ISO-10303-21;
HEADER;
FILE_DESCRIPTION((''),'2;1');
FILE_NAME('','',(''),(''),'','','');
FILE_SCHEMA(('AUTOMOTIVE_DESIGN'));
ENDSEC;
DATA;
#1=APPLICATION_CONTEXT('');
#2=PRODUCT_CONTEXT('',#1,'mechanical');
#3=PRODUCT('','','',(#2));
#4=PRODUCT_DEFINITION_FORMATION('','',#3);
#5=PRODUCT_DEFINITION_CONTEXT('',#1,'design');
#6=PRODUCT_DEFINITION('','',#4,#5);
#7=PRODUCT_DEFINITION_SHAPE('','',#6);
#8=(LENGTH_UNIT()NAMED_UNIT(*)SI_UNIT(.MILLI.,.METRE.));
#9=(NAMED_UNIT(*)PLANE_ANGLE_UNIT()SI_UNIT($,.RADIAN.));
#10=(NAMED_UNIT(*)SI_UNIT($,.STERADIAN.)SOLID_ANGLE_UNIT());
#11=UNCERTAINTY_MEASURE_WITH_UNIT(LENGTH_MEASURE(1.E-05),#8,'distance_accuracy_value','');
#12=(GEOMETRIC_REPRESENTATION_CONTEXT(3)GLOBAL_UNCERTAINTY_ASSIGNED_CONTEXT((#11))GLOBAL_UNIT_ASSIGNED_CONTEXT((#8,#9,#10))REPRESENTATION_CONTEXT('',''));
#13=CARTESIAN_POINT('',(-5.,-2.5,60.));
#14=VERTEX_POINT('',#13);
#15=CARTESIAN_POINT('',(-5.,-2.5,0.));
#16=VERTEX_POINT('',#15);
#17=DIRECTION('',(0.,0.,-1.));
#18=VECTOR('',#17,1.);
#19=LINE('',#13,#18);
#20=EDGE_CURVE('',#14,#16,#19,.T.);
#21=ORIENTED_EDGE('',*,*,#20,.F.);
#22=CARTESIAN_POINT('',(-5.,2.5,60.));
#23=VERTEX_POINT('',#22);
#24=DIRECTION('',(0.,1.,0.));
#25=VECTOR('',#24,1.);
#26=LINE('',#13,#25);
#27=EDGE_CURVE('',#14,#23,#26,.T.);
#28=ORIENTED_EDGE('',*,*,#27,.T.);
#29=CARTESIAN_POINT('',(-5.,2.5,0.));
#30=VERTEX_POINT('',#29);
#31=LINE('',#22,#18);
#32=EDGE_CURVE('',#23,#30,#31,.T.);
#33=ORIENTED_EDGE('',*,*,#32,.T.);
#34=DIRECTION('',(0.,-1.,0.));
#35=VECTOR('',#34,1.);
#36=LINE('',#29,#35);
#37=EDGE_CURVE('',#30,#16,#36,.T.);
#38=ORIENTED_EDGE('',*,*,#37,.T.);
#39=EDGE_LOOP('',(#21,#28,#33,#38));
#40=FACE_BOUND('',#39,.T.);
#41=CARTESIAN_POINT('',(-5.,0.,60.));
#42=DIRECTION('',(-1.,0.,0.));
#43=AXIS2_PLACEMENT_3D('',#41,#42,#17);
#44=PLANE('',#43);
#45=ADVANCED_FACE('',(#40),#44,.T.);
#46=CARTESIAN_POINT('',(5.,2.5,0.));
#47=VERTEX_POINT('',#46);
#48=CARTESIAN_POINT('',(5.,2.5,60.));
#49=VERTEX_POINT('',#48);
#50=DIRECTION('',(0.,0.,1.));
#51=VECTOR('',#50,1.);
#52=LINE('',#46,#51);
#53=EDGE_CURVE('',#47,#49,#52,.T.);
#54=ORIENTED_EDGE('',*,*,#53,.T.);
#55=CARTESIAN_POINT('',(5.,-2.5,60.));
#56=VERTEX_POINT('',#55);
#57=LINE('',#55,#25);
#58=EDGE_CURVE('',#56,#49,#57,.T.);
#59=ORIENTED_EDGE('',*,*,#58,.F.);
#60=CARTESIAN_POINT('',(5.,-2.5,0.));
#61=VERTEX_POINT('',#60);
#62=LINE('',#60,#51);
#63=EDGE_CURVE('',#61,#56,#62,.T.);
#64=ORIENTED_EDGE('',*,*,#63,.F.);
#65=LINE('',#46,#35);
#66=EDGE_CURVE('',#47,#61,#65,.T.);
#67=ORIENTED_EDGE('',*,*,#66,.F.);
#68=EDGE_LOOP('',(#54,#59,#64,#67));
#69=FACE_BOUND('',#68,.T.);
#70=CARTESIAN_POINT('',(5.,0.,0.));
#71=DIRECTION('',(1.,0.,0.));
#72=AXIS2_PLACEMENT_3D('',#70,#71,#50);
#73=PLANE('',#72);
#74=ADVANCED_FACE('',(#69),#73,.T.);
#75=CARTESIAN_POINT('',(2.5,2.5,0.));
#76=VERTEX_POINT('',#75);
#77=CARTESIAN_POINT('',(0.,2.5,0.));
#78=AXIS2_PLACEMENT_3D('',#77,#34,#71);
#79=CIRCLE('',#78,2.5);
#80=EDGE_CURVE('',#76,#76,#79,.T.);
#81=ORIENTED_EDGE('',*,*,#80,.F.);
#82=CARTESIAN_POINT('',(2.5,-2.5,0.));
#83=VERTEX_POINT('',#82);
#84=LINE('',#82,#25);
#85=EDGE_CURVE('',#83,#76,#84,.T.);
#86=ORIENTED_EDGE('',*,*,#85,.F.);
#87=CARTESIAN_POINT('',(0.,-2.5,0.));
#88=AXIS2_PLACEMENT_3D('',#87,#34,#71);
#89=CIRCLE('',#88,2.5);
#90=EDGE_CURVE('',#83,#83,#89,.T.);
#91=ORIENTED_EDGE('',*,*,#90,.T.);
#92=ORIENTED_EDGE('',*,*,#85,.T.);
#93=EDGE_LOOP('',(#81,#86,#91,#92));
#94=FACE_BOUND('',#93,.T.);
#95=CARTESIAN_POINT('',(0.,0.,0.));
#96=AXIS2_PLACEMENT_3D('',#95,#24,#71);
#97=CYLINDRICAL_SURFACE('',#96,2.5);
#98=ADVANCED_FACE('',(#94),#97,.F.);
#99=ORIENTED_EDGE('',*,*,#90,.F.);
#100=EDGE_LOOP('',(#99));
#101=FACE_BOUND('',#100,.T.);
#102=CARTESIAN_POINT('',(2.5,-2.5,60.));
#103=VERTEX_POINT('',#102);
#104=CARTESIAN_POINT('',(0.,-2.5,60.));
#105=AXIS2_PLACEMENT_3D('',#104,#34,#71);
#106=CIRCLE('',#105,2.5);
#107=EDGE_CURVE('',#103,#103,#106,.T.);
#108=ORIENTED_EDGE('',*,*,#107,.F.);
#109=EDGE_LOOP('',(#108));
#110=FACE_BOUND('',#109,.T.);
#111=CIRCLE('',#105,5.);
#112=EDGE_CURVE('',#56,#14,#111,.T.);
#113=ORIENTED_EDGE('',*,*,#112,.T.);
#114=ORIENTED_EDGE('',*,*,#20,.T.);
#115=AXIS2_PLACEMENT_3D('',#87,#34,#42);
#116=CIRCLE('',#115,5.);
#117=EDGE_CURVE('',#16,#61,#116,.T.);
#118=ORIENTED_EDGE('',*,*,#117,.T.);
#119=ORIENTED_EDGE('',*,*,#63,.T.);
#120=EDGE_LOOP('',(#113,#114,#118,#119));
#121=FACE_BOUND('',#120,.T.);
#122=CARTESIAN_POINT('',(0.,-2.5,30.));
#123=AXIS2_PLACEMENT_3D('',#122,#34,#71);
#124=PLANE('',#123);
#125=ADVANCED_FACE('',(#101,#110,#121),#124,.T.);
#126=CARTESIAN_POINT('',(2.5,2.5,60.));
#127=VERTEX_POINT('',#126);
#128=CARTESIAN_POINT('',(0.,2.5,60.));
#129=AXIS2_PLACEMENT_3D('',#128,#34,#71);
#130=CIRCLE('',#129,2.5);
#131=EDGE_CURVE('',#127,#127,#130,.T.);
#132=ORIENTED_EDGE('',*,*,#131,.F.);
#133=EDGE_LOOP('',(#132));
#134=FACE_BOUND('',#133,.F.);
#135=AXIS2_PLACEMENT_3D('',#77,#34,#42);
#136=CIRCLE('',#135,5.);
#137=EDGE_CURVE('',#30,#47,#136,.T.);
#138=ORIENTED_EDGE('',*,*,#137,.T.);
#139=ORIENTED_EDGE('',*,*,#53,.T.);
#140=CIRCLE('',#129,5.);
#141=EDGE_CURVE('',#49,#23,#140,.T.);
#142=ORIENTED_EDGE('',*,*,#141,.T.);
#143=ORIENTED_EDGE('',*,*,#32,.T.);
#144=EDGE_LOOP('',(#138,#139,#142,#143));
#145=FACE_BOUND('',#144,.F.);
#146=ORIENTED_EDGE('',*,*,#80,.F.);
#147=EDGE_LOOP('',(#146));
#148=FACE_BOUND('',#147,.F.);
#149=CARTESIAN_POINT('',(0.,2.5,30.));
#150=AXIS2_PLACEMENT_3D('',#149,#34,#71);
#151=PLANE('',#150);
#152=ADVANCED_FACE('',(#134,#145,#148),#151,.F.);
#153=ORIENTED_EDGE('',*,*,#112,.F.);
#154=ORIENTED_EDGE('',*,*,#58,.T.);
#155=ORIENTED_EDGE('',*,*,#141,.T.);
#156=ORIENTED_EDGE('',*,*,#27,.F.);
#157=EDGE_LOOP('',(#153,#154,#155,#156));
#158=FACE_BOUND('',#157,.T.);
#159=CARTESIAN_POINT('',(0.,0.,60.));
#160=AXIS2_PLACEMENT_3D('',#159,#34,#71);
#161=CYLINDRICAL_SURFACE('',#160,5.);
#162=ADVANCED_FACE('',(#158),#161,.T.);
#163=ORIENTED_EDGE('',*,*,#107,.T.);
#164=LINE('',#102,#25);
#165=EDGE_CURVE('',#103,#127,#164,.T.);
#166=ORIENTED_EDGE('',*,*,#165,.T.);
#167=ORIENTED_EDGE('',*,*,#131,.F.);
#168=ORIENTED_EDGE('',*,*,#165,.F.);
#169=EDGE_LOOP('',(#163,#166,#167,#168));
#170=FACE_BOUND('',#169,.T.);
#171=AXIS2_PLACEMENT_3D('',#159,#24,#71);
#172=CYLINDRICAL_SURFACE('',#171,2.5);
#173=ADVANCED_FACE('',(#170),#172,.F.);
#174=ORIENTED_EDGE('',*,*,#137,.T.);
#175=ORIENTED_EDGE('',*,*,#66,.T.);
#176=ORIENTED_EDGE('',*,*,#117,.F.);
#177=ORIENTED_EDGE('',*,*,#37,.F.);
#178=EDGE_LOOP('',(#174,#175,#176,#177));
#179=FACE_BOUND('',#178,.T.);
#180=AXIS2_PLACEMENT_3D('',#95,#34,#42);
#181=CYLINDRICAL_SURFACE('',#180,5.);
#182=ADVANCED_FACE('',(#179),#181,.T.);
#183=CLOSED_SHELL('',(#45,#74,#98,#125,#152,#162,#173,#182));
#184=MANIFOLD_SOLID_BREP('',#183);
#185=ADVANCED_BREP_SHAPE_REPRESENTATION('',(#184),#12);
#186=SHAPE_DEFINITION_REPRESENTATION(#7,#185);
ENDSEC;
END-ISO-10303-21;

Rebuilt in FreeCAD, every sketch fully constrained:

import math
import FreeCAD as App
import Part
import Sketcher
Q = App.Units.Quantity

doc = App.newDocument("Part")
body = doc.addObject("PartDesign::Body", "Body")

sketch1 = doc.addObject("Sketcher::SketchObject", "Sketch")
body.addObject(sketch1)
sketch1.AttachmentSupport = (doc.XZ_Plane, [""])
sketch1.MapMode = "FlatFace"
sketch1.addGeometry([
    Part.LineSegment(App.Vector(-5, 60, 0), App.Vector(-5, 0, 0)),
    Part.ArcOfCircle(Part.Circle(App.Vector(0, 0, 0), App.Vector(0, 0, 1), 5), math.radians(180), math.radians(360)),
    Part.LineSegment(App.Vector(5, 0, 0), App.Vector(5, 60, 0)),
    Part.ArcOfCircle(Part.Circle(App.Vector(0, 60, 0), App.Vector(0, 0, 1), 5), math.radians(0), math.radians(180)),
    Part.Circle(App.Vector(0, 0, 0), App.Vector(0, 0, 1), 2.5),
    Part.Circle(App.Vector(0, 60, 0), App.Vector(0, 0, 1), 2.5),
], False)
sketch1.addConstraint([
    Sketcher.Constraint("Tangent", 0, 2, 1, 1),
    Sketcher.Constraint("Tangent", 1, 2, 2, 1),
    Sketcher.Constraint("Tangent", 2, 2, 3, 1),
    Sketcher.Constraint("Tangent", 3, 2, 0, 1),
    Sketcher.Constraint("Vertical", 0),
    Sketcher.Constraint("Vertical", 2),
    Sketcher.Constraint("Coincident", 1, 3, -1, 1),
    Sketcher.Constraint("Coincident", 4, 3, -1, 1),
    Sketcher.Constraint("Coincident", 5, 3, 3, 3),
    Sketcher.Constraint("Equal", 4, 5),
    Sketcher.Constraint("Diameter", 4, Q("5 mm")),
    Sketcher.Constraint("Radius", 1, Q("5 mm")),
    Sketcher.Constraint("DistanceY", 0, 2, 0, 1, Q("60 mm")),
])
pad1 = doc.addObject("PartDesign::Pad", "Pad")
body.addObject(pad1)
pad1.Profile = sketch1
pad1.Length = 5
pad1.Midplane = True

doc.recompute()
